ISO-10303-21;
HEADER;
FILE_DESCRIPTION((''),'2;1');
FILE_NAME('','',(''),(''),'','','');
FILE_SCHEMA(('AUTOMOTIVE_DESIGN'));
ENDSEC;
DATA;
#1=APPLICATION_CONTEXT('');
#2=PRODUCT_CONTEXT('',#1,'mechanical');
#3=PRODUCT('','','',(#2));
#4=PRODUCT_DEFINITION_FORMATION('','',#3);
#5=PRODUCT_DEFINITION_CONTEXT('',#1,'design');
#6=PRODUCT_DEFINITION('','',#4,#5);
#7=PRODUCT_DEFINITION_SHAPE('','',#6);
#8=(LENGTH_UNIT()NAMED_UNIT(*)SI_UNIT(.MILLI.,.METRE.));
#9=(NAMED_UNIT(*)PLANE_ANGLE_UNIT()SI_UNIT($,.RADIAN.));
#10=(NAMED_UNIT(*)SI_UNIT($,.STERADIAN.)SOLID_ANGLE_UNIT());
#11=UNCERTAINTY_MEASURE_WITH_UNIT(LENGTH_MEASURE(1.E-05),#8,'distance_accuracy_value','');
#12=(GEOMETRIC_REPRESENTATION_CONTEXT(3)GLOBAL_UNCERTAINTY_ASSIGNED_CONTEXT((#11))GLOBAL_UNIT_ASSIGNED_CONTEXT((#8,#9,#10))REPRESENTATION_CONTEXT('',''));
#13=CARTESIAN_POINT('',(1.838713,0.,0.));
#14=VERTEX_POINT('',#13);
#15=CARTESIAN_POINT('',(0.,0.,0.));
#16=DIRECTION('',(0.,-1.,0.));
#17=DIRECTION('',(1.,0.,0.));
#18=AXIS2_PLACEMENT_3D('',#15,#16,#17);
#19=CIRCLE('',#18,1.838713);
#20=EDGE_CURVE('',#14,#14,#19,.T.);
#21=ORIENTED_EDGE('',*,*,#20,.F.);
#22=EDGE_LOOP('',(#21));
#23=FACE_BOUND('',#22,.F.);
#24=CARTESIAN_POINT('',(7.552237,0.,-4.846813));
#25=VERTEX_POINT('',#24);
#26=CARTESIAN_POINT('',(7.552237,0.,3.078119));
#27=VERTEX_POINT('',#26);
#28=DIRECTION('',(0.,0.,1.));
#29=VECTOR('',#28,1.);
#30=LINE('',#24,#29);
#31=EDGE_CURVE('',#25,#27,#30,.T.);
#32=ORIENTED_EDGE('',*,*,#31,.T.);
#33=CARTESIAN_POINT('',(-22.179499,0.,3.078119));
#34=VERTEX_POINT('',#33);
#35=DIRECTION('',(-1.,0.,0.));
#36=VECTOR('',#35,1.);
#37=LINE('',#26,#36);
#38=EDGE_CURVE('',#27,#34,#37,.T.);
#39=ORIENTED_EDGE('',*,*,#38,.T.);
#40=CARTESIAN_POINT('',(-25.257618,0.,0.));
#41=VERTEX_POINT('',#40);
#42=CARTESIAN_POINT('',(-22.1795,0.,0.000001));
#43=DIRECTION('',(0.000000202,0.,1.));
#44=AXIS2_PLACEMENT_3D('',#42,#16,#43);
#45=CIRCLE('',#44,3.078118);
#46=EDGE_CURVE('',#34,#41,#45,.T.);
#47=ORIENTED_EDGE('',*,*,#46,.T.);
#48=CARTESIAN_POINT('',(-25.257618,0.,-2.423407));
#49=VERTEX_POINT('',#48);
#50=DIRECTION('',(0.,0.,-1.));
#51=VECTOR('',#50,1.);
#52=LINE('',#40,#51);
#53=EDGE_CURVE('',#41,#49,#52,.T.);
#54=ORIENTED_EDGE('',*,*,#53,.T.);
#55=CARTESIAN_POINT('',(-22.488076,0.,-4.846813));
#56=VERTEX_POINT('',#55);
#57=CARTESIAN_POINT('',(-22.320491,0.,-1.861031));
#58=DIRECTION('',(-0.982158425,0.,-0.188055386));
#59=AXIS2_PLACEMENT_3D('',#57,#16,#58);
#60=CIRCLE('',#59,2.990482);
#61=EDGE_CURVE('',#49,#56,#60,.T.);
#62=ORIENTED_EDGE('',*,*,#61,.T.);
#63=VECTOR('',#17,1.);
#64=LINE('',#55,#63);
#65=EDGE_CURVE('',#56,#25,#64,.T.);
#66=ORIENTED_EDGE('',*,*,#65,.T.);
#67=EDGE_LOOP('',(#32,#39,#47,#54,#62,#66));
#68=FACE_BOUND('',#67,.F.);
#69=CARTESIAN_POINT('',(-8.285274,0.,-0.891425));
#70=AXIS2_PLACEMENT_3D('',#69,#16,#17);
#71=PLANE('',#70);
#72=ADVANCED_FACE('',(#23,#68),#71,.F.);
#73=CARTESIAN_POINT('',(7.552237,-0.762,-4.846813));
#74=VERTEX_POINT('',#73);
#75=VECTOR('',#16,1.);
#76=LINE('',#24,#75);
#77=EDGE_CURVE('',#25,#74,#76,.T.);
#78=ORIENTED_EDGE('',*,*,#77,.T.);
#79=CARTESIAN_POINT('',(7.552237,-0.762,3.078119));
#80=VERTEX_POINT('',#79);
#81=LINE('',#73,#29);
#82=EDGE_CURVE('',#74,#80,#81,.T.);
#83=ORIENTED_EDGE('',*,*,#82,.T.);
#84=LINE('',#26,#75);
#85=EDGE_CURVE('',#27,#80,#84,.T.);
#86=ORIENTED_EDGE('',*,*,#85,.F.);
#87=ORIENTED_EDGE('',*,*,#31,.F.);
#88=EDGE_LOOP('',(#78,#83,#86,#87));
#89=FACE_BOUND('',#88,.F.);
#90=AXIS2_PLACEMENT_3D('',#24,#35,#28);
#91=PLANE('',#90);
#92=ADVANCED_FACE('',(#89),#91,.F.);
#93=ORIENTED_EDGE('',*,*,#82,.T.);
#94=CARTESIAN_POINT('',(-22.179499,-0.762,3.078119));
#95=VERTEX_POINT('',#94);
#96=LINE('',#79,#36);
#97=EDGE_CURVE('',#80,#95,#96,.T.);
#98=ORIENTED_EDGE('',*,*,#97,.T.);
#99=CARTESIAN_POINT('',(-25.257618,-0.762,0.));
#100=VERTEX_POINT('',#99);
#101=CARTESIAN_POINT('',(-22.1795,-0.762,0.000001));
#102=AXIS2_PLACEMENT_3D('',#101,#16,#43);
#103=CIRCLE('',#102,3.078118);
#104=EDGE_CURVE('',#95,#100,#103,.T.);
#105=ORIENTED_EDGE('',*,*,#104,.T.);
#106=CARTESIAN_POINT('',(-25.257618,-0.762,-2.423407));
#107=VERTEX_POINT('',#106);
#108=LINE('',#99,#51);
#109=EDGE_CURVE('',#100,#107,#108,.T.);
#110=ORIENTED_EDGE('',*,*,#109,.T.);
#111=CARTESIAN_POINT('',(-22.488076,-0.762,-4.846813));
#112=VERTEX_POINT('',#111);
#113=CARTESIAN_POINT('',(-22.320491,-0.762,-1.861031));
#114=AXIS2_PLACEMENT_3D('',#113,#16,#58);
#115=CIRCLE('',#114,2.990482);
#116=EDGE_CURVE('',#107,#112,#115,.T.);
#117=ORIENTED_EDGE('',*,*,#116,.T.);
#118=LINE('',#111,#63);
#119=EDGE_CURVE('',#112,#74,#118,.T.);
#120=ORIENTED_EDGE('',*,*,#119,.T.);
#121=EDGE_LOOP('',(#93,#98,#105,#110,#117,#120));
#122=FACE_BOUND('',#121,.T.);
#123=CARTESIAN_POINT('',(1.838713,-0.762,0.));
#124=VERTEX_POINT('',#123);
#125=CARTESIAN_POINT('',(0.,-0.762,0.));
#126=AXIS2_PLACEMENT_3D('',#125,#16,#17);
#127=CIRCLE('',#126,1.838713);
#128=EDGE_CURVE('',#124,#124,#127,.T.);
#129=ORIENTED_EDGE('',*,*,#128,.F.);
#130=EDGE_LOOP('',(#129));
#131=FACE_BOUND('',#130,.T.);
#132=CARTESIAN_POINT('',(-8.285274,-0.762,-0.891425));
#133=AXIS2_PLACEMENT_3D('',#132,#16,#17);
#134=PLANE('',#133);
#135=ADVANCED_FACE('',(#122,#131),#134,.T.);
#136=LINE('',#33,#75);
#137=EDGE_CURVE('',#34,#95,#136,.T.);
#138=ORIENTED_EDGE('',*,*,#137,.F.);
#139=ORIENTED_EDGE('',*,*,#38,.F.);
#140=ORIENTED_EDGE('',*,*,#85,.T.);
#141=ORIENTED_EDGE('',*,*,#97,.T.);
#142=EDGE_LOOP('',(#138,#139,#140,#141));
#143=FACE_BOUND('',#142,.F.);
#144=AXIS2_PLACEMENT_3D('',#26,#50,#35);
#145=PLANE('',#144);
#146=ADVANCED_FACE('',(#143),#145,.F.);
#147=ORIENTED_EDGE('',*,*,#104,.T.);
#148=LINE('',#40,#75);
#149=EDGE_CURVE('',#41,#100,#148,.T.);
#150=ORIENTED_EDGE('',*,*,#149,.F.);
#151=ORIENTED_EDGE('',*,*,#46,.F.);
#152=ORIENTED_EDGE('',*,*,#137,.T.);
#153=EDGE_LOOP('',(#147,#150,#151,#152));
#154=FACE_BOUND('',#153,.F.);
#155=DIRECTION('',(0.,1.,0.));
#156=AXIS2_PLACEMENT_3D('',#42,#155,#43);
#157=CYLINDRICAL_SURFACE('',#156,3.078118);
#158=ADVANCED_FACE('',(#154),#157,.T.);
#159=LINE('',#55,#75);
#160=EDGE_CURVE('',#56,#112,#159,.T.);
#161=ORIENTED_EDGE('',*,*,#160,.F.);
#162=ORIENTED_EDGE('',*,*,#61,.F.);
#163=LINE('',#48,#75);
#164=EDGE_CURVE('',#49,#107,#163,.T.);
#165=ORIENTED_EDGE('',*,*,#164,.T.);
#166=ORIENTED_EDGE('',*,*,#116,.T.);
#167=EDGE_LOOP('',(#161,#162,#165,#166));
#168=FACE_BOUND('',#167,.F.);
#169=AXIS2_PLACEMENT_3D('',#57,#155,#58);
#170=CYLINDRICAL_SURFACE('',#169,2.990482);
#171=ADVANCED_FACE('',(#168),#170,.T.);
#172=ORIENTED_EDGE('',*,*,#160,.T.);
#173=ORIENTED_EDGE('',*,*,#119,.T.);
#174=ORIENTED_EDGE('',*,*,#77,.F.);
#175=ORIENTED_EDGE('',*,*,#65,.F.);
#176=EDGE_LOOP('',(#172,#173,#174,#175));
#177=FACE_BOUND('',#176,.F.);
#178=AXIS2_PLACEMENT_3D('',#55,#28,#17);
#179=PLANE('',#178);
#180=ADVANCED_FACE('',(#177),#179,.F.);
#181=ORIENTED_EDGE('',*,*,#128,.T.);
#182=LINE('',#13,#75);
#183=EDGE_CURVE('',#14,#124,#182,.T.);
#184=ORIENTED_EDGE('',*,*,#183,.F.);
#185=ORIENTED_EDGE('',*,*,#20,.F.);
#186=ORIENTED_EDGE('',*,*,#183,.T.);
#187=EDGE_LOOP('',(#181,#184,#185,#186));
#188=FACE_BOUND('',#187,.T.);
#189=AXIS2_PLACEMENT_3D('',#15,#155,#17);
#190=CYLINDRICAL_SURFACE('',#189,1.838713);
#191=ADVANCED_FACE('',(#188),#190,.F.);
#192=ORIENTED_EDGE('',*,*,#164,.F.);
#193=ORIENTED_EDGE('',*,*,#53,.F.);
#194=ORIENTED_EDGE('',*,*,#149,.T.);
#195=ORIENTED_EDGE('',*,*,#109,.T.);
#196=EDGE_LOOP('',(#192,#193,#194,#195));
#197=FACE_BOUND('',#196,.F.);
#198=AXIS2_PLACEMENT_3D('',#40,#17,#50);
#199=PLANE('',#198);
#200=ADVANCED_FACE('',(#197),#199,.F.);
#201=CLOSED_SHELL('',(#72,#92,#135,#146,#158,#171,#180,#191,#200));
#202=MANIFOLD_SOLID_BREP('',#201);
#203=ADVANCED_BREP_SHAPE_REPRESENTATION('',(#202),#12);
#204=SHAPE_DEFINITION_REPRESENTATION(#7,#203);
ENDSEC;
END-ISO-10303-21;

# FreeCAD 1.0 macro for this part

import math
import FreeCAD as App
import Part
import Sketcher
Q = App.Units.Quantity

doc = App.newDocument("Part")
body = doc.addObject("PartDesign::Body", "Body")

# Sketch on XZ plane
sketch1 = body.newObject("Sketcher::SketchObject", "Sketch")
sketch1.AttachmentSupport = (doc.getObject("XZ_Plane"), [""])
sketch1.MapMode = "FlatFace"
sketch1.addGeometry([
    Part.LineSegment(App.Vector(7.6, 3.1, 0), App.Vector(-22.2, 3.1, 0)),  # 0
    Part.ArcOfCircle(Part.Circle(App.Vector(-22.2, 0, 0), App.Vector(0, 0, 1), 3.1), math.radians(90), math.radians(180)),  # 1
    Part.LineSegment(App.Vector(-25.3, 0, 0), App.Vector(-25.3, -2.4, 0)),  # 2
    Part.ArcOfCircle(Part.Circle(App.Vector(-22.3, -1.9, 0), App.Vector(0, 0, 1), 3), math.radians(-169), math.radians(-93)),  # 3
    Part.LineSegment(App.Vector(-22.5, -4.8, 0), App.Vector(7.6, -4.8, 0)),  # 4
    Part.LineSegment(App.Vector(7.6, -4.8, 0), App.Vector(7.6, 3.1, 0)),  # 5
    Part.Circle(App.Vector(0, 0, 0), App.Vector(0, 0, 1), 1.8),  # 6
], False)
sketch1.addConstraint([
    Sketcher.Constraint("Tangent", 0, 2, 1, 1),
    Sketcher.Constraint("Tangent", 1, 2, 2, 1),
    Sketcher.Constraint("Coincident", 2, 2, 3, 1),
    Sketcher.Constraint("Coincident", 3, 2, 4, 1),
    Sketcher.Constraint("Coincident", 4, 2, 5, 1),
    Sketcher.Constraint("Coincident", 5, 2, 0, 1),
    Sketcher.Constraint("Horizontal", 0),
    Sketcher.Constraint("Vertical", 2),
    Sketcher.Constraint("Horizontal", 4),
    Sketcher.Constraint("Vertical", 5),
    Sketcher.Constraint("Coincident", 6, 3, -1, 1),
    Sketcher.Constraint("PointOnObject", 1, 3, -1),
    Sketcher.Constraint("Radius", 1, Q("3.078118 mm")),
    Sketcher.Constraint("Radius", 3, Q("2.990482 mm")),
    Sketcher.Constraint("Diameter", 6, Q("3.677426 mm")),
    Sketcher.Constraint("DistanceX", 1, 3, -1, 1, Q("22.1795 mm")),
    Sketcher.Constraint("DistanceX", 0, 2, 0, 1, Q("29.731736 mm")),
    Sketcher.Constraint("DistanceX", 4, 1, 4, 2, Q("30.040313 mm")),
    Sketcher.Constraint("DistanceY", 2, 2, 2, 1, Q("2.423407 mm")),
    Sketcher.Constraint("DistanceY", 5, 1, 5, 2, Q("7.924932 mm")),
])
pad1 = body.newObject("PartDesign::Pad", "Pad")
pad1.Profile = sketch1
pad1.Length = Q("0.03 in")

doc.recompute()
